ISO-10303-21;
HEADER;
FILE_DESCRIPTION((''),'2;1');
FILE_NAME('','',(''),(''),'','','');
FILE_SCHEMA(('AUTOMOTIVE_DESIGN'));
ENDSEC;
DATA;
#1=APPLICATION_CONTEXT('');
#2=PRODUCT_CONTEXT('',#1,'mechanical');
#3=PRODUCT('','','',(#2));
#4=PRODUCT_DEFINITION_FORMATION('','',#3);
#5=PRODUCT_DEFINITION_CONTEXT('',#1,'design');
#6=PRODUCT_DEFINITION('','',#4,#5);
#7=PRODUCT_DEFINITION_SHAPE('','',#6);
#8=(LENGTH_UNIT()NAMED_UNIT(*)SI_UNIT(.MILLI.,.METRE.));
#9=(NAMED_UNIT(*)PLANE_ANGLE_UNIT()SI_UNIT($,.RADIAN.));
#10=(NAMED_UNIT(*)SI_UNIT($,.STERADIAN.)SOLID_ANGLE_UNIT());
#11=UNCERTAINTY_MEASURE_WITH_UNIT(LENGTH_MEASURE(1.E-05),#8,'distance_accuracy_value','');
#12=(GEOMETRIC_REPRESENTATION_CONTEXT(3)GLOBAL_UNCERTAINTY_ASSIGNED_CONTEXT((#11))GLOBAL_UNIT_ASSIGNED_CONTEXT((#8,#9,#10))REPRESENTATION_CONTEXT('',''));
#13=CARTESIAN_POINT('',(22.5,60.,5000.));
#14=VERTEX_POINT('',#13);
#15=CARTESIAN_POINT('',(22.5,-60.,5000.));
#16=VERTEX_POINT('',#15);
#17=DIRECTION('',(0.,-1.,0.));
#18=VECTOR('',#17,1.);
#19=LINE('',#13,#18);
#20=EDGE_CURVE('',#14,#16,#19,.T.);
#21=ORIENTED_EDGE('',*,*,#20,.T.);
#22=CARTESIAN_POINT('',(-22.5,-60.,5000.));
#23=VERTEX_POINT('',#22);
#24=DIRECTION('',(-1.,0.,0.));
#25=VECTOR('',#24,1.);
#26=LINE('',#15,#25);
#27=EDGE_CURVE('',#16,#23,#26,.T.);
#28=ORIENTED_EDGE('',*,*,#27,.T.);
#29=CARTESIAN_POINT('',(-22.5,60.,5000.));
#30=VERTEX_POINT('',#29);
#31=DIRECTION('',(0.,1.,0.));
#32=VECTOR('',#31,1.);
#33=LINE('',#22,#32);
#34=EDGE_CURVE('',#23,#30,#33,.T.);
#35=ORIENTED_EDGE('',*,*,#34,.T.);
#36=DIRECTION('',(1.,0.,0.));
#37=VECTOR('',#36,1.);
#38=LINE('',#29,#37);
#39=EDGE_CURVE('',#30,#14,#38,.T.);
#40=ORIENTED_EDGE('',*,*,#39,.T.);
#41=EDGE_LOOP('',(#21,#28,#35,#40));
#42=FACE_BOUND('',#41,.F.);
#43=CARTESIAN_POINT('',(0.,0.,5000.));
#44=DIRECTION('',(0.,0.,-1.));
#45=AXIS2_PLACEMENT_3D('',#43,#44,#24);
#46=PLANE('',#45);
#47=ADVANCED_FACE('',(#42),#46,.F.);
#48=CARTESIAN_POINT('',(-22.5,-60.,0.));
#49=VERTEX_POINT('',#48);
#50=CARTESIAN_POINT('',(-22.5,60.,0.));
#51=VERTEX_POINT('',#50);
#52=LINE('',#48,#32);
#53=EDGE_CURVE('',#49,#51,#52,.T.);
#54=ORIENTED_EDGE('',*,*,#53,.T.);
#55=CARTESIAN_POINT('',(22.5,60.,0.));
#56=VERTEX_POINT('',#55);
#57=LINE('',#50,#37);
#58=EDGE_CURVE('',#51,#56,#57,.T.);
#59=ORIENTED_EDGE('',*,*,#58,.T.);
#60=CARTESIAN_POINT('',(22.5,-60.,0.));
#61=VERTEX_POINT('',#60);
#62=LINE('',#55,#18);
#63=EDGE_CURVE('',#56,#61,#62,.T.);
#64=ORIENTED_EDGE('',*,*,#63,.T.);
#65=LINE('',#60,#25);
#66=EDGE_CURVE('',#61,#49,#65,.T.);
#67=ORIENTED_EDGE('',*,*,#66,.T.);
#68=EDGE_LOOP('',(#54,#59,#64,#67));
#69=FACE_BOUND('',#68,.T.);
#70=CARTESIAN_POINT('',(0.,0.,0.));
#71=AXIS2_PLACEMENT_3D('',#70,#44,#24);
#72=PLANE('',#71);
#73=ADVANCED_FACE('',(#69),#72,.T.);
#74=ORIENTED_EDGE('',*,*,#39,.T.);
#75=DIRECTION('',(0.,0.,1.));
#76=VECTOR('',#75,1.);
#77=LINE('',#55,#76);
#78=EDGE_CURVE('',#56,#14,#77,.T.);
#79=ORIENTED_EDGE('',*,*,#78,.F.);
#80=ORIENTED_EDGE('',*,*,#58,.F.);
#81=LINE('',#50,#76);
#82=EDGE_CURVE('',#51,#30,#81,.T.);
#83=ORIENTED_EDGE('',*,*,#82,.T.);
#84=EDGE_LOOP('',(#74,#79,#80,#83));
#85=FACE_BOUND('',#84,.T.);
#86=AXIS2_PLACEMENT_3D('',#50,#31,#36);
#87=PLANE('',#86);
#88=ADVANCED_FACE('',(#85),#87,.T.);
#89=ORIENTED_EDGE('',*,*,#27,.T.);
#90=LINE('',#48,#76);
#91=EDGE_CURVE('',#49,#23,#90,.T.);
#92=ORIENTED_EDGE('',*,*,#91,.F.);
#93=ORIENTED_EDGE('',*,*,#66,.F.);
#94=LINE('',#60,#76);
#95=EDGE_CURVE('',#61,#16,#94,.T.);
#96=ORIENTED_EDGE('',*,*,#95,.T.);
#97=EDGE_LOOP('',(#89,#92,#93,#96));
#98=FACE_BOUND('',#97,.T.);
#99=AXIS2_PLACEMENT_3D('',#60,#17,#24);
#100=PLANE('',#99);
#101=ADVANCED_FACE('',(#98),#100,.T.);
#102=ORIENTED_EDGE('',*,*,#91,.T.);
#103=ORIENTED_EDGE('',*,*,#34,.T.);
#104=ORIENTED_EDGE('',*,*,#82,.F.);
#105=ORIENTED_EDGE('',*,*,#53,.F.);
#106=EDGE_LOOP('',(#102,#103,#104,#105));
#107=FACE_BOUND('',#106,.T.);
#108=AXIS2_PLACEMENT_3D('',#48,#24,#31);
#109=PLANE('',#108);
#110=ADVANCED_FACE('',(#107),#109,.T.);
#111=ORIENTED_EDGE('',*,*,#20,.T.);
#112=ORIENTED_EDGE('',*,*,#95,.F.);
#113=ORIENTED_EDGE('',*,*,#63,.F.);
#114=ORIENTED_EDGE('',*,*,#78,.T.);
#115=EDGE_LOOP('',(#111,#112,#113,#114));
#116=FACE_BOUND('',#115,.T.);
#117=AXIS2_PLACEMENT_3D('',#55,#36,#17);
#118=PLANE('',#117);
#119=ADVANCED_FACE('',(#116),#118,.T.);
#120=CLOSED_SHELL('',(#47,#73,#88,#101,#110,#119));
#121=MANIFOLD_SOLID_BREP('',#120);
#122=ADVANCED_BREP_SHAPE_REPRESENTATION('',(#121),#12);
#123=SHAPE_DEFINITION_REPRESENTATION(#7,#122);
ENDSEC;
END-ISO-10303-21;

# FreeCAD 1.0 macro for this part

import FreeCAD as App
import Part
import Sketcher
from FreeCAD import Vector
Q = App.Units.Quantity


def add_polygon(sketch, points):
    """Adds a closed chain of lines whose ends are joined by coincident constraints."""
    first, n = sketch.GeometryCount, len(points)
    for a, b in zip(points, points[1:] + points[:1]):
        sketch.addGeometry(Part.LineSegment(App.Vector(*a, 0), App.Vector(*b, 0)), False)
    for i in range(n):
        sketch.addConstraint(Sketcher.Constraint("Coincident", first + i, 2, first + (i + 1) % n, 1))

doc = App.newDocument("Part")
body = doc.addObject("PartDesign::Body", "Body")

sketch1 = body.newObject("Sketcher::SketchObject", "Sketch")
sketch1.AttachmentSupport = (doc.getObject("XY_Plane"), [""])
sketch1.MapMode = "FlatFace"
add_polygon(sketch1, [(22, 60), (22, -60), (-22, -60), (-22, 60)])
sketch1.addConstraint([
    Sketcher.Constraint("Vertical", 0),
    Sketcher.Constraint("Horizontal", 1),
    Sketcher.Constraint("Vertical", 2),
    Sketcher.Constraint("Horizontal", 3),
    Sketcher.Constraint("Symmetric", 0, 2, 2, 2, -1, 1),
    Sketcher.Constraint("DistanceX", 1, 2, 1, 1, Q("45 mm")),
    Sketcher.Constraint("DistanceY", 0, 2, 0, 1, Q("120 mm")),
])
pad1 = body.newObject("PartDesign::Pad", "Pad")
pad1.Profile = sketch1
pad1.Length = 5000

doc.recompute()
